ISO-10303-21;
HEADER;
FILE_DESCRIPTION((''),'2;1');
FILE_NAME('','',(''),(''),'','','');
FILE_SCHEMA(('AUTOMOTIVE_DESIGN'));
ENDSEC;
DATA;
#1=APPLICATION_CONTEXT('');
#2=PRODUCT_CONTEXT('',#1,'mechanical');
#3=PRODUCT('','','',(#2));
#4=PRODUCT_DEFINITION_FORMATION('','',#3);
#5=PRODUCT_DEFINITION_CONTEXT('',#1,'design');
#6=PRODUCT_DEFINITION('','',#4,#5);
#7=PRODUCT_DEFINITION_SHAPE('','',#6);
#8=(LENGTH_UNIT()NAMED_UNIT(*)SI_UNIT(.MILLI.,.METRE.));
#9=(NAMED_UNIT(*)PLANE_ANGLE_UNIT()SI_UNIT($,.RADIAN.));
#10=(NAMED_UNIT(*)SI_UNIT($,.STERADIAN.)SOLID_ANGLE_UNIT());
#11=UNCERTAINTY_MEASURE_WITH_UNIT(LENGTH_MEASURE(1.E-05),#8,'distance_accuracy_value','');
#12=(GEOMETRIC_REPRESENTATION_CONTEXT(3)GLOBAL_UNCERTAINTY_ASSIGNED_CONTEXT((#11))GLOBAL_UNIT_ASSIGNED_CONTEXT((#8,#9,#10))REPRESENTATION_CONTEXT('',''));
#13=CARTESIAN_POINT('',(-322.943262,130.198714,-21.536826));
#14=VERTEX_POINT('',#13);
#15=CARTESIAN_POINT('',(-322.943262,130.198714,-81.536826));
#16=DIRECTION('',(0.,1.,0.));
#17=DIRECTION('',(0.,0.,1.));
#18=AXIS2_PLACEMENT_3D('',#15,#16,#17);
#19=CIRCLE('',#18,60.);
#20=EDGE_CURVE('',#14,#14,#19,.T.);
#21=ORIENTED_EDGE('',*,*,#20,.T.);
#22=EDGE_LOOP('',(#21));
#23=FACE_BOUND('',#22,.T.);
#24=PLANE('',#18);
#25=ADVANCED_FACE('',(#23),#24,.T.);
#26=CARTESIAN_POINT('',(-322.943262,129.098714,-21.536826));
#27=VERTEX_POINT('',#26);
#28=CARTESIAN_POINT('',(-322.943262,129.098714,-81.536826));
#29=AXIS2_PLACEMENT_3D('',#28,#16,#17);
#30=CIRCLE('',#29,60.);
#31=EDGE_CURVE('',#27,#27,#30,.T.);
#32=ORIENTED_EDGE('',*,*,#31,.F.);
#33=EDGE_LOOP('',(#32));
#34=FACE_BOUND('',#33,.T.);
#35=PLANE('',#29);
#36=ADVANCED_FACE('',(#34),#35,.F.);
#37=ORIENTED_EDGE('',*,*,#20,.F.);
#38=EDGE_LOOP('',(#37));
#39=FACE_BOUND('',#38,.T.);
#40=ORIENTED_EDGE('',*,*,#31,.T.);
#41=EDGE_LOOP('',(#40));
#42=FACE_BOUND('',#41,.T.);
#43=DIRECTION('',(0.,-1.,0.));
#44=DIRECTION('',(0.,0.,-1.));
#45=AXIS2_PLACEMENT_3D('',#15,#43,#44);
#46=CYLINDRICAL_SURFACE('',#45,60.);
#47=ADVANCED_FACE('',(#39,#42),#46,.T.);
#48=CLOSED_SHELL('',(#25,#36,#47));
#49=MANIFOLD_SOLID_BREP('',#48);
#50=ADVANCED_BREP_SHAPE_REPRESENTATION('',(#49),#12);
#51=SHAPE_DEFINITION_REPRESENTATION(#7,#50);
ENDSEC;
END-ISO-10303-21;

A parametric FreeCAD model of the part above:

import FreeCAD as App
import Part
import Sketcher

doc = App.newDocument("Part")
body = doc.addObject("PartDesign::Body", "Body")

# Sketch on XZ plane
sketch1 = body.newObject("Sketcher::SketchObject", "Sketch")
sketch1.AttachmentSupport = (doc.getObject("XZ_Plane"), [""])
sketch1.MapMode = "FlatFace"
sketch1.AttachmentOffset = App.Placement(App.Vector(0, 0, -129.098714), App.Rotation())
sketch1.addGeometry(Part.Circle(App.Vector(-322.943262, -81.536826, 0), App.Vector(0, 0, 1), 60), False)
sketch1.addConstraint([
    Sketcher.Constraint("Diameter", 0, 120.0),
    Sketcher.Constraint("DistanceX", 0, 3, -1, 1, 322.943262),
    Sketcher.Constraint("DistanceY", 0, 3, -1, 1, 81.536826),
])
pad1 = body.newObject("PartDesign::Pad", "Pad")
pad1.Profile = sketch1
pad1.Length = 1.1
pad1.Reversed = True

doc.recompute()
